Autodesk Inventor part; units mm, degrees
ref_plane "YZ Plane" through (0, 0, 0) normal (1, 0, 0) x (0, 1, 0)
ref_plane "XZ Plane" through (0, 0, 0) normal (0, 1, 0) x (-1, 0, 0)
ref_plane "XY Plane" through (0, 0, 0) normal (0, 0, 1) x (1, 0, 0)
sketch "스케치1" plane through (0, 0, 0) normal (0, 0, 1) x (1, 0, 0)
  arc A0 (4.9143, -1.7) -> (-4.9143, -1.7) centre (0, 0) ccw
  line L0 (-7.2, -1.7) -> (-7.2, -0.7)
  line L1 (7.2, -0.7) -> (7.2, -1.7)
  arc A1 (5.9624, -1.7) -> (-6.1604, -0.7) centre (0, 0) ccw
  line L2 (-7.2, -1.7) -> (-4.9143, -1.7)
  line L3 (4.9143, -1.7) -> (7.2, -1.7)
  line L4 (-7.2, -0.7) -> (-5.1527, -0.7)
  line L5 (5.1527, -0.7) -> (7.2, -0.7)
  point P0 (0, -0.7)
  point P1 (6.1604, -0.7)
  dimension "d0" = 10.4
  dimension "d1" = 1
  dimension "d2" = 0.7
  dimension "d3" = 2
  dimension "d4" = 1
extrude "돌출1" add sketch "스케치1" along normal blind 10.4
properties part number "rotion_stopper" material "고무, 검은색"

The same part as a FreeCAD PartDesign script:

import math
import FreeCAD as App
import Part
import Sketcher
from FreeCAD import Vector

doc = App.newDocument("Part")
body = doc.addObject("PartDesign::Body", "Body")

# Sketch on XY plane
sketch1 = body.newObject("Sketcher::SketchObject", "Sketch")
sketch1.AttachmentSupport = (doc.getObject("XY_Plane"), [""])
sketch1.MapMode = "FlatFace"
sketch1.addGeometry(Part.LineSegment(Vector(4.9, -1.7, 0), Vector(7.2, -1.7, 0)), False)
sketch1.addGeometry(Part.LineSegment(Vector(7.2, -1.7, 0), Vector(7.2, -0.7, 0)), False)
sketch1.addGeometry(Part.LineSegment(Vector(7.2, -0.7, 0), Vector(6.2, -0.7, 0)), False)
sketch1.addGeometry(Part.ArcOfCircle(Part.Circle(Vector(0, 0, 0), Vector(0, 0, 1), 6.2), math.radians(-6), math.radians(186)), False)
sketch1.addGeometry(Part.LineSegment(Vector(-6.2, -0.7, 0), Vector(-7.2, -0.7, 0)), False)
sketch1.addGeometry(Part.LineSegment(Vector(-7.2, -0.7, 0), Vector(-7.2, -1.7, 0)), False)
sketch1.addGeometry(Part.LineSegment(Vector(-7.2, -1.7, 0), Vector(-4.9, -1.7, 0)), False)
sketch1.addGeometry(Part.ArcOfCircle(Part.Circle(Vector(0, 0, 0), Vector(0, 0, 1), 5.2), math.radians(-19), math.radians(199)), False)
sketch1.addConstraint(Sketcher.Constraint("Coincident", 0, 2, 1, 1))
sketch1.addConstraint(Sketcher.Constraint("Coincident", 1, 2, 2, 1))
sketch1.addConstraint(Sketcher.Constraint("Coincident", 2, 2, 3, 1))
sketch1.addConstraint(Sketcher.Constraint("Coincident", 3, 2, 4, 1))
sketch1.addConstraint(Sketcher.Constraint("Coincident", 4, 2, 5, 1))
sketch1.addConstraint(Sketcher.Constraint("Coincident", 5, 2, 6, 1))
sketch1.addConstraint(Sketcher.Constraint("Coincident", 6, 2, 7, 2))
sketch1.addConstraint(Sketcher.Constraint("Coincident", 7, 1, 0, 1))
sketch1.addConstraint(Sketcher.Constraint("Horizontal", 0))
sketch1.addConstraint(Sketcher.Constraint("Vertical", 1))
sketch1.addConstraint(Sketcher.Constraint("Horizontal", 2))
sketch1.addConstraint(Sketcher.Constraint("Horizontal", 4))
sketch1.addConstraint(Sketcher.Constraint("Vertical", 5))
sketch1.addConstraint(Sketcher.Constraint("Horizontal", 6))
sketch1.addConstraint(Sketcher.Constraint("Coincident", 3, 3, -1, 1))
sketch1.addConstraint(Sketcher.Constraint("Coincident", 7, 3, -1, 1))
sketch1.addConstraint(Sketcher.Constraint("Symmetric", 1, 2, 4, 2, -2))
sketch1.addConstraint(Sketcher.Constraint("Horizontal", 0, 2, 5, 2))
sketch1.addConstraint(Sketcher.Constraint("Radius", 7, 5.2))
sketch1.addConstraint(Sketcher.Constraint("DistanceY", 1, 1, 1, 2, 1.0))
sketch1.addConstraint(Sketcher.Constraint("DistanceY", 1, 2, -1, 1, 0.7))
sketch1.addConstraint(Sketcher.Constraint("Radius", 3, 6.2))
sketch1.addConstraint(Sketcher.Constraint("DistanceX", -1, 1, 0, 2, 7.2))
pad1 = body.newObject("PartDesign::Pad", "Pad")
pad1.Profile = sketch1
pad1.Length = 10.4

doc.recompute()
